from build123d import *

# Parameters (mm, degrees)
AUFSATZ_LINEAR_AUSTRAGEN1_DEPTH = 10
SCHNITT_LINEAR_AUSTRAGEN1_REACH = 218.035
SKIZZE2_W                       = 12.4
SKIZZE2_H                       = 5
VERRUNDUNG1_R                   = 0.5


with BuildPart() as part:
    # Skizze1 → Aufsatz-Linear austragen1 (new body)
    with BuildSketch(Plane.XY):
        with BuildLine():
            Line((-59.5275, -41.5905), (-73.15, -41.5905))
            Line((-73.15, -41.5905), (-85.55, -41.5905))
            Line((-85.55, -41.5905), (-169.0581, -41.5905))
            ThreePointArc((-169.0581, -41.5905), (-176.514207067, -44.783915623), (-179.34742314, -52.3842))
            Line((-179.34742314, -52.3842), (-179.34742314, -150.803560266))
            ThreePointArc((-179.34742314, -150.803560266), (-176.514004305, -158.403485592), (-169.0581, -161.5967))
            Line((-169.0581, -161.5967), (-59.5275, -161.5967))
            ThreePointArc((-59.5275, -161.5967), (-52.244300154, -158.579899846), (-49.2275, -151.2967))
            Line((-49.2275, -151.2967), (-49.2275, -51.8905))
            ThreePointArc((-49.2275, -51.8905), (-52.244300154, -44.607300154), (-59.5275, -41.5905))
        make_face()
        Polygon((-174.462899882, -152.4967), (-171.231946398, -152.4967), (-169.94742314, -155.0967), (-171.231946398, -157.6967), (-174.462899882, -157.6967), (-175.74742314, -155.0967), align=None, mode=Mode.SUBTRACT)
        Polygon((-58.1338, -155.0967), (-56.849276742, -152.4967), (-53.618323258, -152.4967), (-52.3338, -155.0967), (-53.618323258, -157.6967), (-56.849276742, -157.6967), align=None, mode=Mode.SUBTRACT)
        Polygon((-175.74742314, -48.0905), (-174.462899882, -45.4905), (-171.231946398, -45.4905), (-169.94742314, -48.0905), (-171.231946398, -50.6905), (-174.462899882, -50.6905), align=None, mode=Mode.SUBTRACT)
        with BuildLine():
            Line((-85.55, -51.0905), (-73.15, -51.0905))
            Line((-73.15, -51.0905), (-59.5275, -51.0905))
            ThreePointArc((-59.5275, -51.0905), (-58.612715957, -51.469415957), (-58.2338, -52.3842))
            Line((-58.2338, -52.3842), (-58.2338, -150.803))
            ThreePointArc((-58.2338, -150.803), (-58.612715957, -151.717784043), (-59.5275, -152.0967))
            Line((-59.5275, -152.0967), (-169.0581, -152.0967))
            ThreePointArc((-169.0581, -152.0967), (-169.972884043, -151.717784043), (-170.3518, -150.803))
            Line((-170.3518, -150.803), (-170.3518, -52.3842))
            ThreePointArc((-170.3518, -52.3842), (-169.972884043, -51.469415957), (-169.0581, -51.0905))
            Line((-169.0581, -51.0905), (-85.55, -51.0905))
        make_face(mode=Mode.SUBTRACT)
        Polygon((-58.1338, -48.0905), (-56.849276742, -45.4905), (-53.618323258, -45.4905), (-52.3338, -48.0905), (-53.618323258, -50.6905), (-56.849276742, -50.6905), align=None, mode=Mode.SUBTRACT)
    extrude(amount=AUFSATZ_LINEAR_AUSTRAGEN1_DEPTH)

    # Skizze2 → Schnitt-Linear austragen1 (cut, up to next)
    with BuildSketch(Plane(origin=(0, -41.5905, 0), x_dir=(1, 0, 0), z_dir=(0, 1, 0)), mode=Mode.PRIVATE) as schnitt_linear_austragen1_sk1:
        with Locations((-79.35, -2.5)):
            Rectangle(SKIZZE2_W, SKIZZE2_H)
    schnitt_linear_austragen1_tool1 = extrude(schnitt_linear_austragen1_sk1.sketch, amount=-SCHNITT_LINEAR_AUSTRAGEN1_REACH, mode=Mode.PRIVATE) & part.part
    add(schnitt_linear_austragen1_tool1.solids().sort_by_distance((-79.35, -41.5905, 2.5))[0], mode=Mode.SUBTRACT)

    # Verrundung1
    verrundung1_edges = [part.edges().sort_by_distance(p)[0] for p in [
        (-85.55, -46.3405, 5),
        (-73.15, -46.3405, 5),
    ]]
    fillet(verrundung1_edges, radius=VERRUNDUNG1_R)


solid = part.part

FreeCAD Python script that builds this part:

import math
import FreeCAD as App
import Part
import Sketcher
from FreeCAD import Vector
Q = App.Units.Quantity


def edges_at(feature, points):
    """Names of the edges that pass closest to the given points."""
    edges = feature.Shape.Edges
    near = lambda p: min(range(len(edges)), key=lambda i: edges[i].distToShape(Part.Vertex(*p))[0])
    return sorted({f"Edge{near(p) + 1}" for p in points})


def add_polygon(sketch, points):
    """Adds a closed chain of lines whose ends are joined by coincident constraints."""
    first, n = sketch.GeometryCount, len(points)
    for a, b in zip(points, points[1:] + points[:1]):
        sketch.addGeometry(Part.LineSegment(App.Vector(*a, 0), App.Vector(*b, 0)), False)
    for i in range(n):
        sketch.addConstraint(Sketcher.Constraint("Coincident", first + i, 2, first + (i + 1) % n, 1))

doc = App.newDocument("Part")
body = doc.addObject("PartDesign::Body", "Body")

sketch1 = doc.addObject("Sketcher::SketchObject", "Sketch")
body.addObject(sketch1)
sketch1.AttachmentSupport = (doc.XY_Plane, [""])
sketch1.MapMode = "FlatFace"
sketch1.addGeometry(Part.LineSegment(Vector(-59.5, -41.6, 0), Vector(-169.1, -41.6, 0)), False)
sketch1.addGeometry(Part.ArcOfCircle(Part.Circle(Vector(-169.1, -51.9, 0), Vector(0, 0, 1), 10.3), math.radians(90), math.radians(183)), False)
sketch1.addGeometry(Part.LineSegment(Vector(-179.3, -52.4, 0), Vector(-179.3, -150.8, 0)), False)
sketch1.addGeometry(Part.ArcOfCircle(Part.Circle(Vector(-169.1, -151.3, 0), Vector(0, 0, 1), 10.3), math.radians(177), math.radians(270)), False)
sketch1.addGeometry(Part.LineSegment(Vector(-169.1, -161.6, 0), Vector(-59.5, -161.6, 0)), False)
sketch1.addGeometry(Part.ArcOfCircle(Part.Circle(Vector(-59.5, -151.3, 0), Vector(0, 0, 1), 10.3), math.radians(-90), math.radians(0)), False)
sketch1.addGeometry(Part.LineSegment(Vector(-49.2, -151.3, 0), Vector(-49.2, -51.9, 0)), False)
sketch1.addGeometry(Part.ArcOfCircle(Part.Circle(Vector(-59.5, -51.9, 0), Vector(0, 0, 1), 10.3), math.radians(0), math.radians(90)), False)
add_polygon(sketch1, [(-175.7, -155.1), (-174.5, -152.5), (-171.2, -152.5), (-169.9, -155.1), (-171.2, -157.7), (-174.5, -157.7)])
add_polygon(sketch1, [(-56.8, -157.7), (-58.1, -155.1), (-56.8, -152.5), (-53.6, -152.5), (-52.3, -155.1), (-53.6, -157.7)])
sketch1.addGeometry(Part.LineSegment(Vector(-169.1, -51.1, 0), Vector(-59.5, -51.1, 0)), False)
sketch1.addGeometry(Part.ArcOfCircle(Part.Circle(Vector(-59.5, -52.4, 0), Vector(0, 0, 1), 1.3), math.radians(0), math.radians(90)), False)
sketch1.addGeometry(Part.LineSegment(Vector(-58.2, -52.4, 0), Vector(-58.2, -150.8, 0)), False)
sketch1.addGeometry(Part.ArcOfCircle(Part.Circle(Vector(-59.5, -150.8, 0), Vector(0, 0, 1), 1.3), math.radians(-90), math.radians(0)), False)
sketch1.addGeometry(Part.LineSegment(Vector(-59.5, -152.1, 0), Vector(-169.1, -152.1, 0)), False)
sketch1.addGeometry(Part.ArcOfCircle(Part.Circle(Vector(-169.1, -150.8, 0), Vector(0, 0, 1), 1.3), math.radians(180), math.radians(270)), False)
sketch1.addGeometry(Part.LineSegment(Vector(-170.4, -150.8, 0), Vector(-170.4, -52.4, 0)), False)
sketch1.addGeometry(Part.ArcOfCircle(Part.Circle(Vector(-169.1, -52.4, 0), Vector(0, 0, 1), 1.3), math.radians(90), math.radians(180)), False)
add_polygon(sketch1, [(-174.5, -50.7), (-175.7, -48.1), (-174.5, -45.5), (-171.2, -45.5), (-169.9, -48.1), (-171.2, -50.7)])
add_polygon(sketch1, [(-56.8, -50.7), (-58.1, -48.1), (-56.8, -45.5), (-53.6, -45.5), (-52.3, -48.1), (-53.6, -50.7)])
sketch1.addConstraint(Sketcher.Constraint("Tangent", 0, 2, 1, 1))
sketch1.addConstraint(Sketcher.Constraint("Coincident", 1, 2, 2, 1))
sketch1.addConstraint(Sketcher.Constraint("Coincident", 2, 2, 3, 1))
sketch1.addConstraint(Sketcher.Constraint("Tangent", 3, 2, 4, 1))
sketch1.addConstraint(Sketcher.Constraint("Tangent", 4, 2, 5, 1))
sketch1.addConstraint(Sketcher.Constraint("Tangent", 5, 2, 6, 1))
sketch1.addConstraint(Sketcher.Constraint("Tangent", 6, 2, 7, 1))
sketch1.addConstraint(Sketcher.Constraint("Tangent", 7, 2, 0, 1))
sketch1.addConstraint(Sketcher.Constraint("Tangent", 20, 2, 21, 2))
sketch1.addConstraint(Sketcher.Constraint("Tangent", 21, 1, 22, 1))
sketch1.addConstraint(Sketcher.Constraint("Tangent", 22, 2, 23, 2))
sketch1.addConstraint(Sketcher.Constraint("Tangent", 23, 1, 24, 1))
sketch1.addConstraint(Sketcher.Constraint("Tangent", 24, 2, 25, 2))
sketch1.addConstraint(Sketcher.Constraint("Tangent", 25, 1, 26, 1))
sketch1.addConstraint(Sketcher.Constraint("Tangent", 26, 2, 27, 2))
sketch1.addConstraint(Sketcher.Constraint("Tangent", 27, 1, 20, 1))
sketch1.addConstraint(Sketcher.Constraint("Horizontal", 0))
sketch1.addConstraint(Sketcher.Constraint("Vertical", 2))
sketch1.addConstraint(Sketcher.Constraint("Horizontal", 4))
sketch1.addConstraint(Sketcher.Constraint("Vertical", 6))
sketch1.addConstraint(Sketcher.Constraint("Horizontal", 9))
sketch1.addConstraint(Sketcher.Constraint("Horizontal", 12))
sketch1.addConstraint(Sketcher.Constraint("Horizontal", 16))
sketch1.addConstraint(Sketcher.Constraint("Horizontal", 19))
sketch1.addConstraint(Sketcher.Constraint("Horizontal", 20))
sketch1.addConstraint(Sketcher.Constraint("Vertical", 22))
sketch1.addConstraint(Sketcher.Constraint("Horizontal", 24))
sketch1.addConstraint(Sketcher.Constraint("Vertical", 26))
sketch1.addConstraint(Sketcher.Constraint("Horizontal", 30))
sketch1.addConstraint(Sketcher.Constraint("Horizontal", 33))
sketch1.addConstraint(Sketcher.Constraint("Horizontal", 36))
sketch1.addConstraint(Sketcher.Constraint("Horizontal", 39))
sketch1.addConstraint(Sketcher.Constraint("Equal", 5, 7))
sketch1.addConstraint(Sketcher.Constraint("Equal", 21, 23))
sketch1.addConstraint(Sketcher.Constraint("Equal", 23, 25))
sketch1.addConstraint(Sketcher.Constraint("Equal", 25, 27))
sketch1.addConstraint(Sketcher.Constraint("Parallel", 8, 11))
sketch1.addConstraint(Sketcher.Constraint("Parallel", 10, 13))
sketch1.addConstraint(Sketcher.Constraint("Parallel", 13, 14))
sketch1.addConstraint(Sketcher.Constraint("Parallel", 11, 15))
sketch1.addConstraint(Sketcher.Constraint("Parallel", 14, 17))
sketch1.addConstraint(Sketcher.Constraint("Parallel", 15, 18))
sketch1.addConstraint(Sketcher.Constraint("Parallel", 17, 28))
sketch1.addConstraint(Sketcher.Constraint("Parallel", 18, 29))
sketch1.addConstraint(Sketcher.Constraint("Parallel", 28, 31))
sketch1.addConstraint(Sketcher.Constraint("Parallel", 29, 32))
sketch1.addConstraint(Sketcher.Constraint("Parallel", 31, 34))
sketch1.addConstraint(Sketcher.Constraint("Parallel", 32, 35))
sketch1.addConstraint(Sketcher.Constraint("Parallel", 34, 37))
sketch1.addConstraint(Sketcher.Constraint("Parallel", 35, 38))
sketch1.addConstraint(Sketcher.Constraint("Horizontal", 27, 3, 1, 2))
sketch1.addConstraint(Sketcher.Constraint("Horizontal", 10, 2, 13, 2))
sketch1.addConstraint(Sketcher.Constraint("Horizontal", 13, 2, 14, 2))
sketch1.addConstraint(Sketcher.Constraint("Horizontal", 9, 2, 15, 2))
sketch1.addConstraint(Sketcher.Constraint("Horizontal", 14, 2, 17, 2))
sketch1.addConstraint(Sketcher.Constraint("Horizontal", 12, 2, 18, 2))
sketch1.addConstraint(Sketcher.Constraint("Horizontal", 28, 2, 31, 2))
sketch1.addConstraint(Sketcher.Constraint("Horizontal", 31, 2, 34, 2))
sketch1.addConstraint(Sketcher.Constraint("Horizontal", 30, 2, 35, 2))
sketch1.addConstraint(Sketcher.Constraint("Horizontal", 34, 2, 37, 2))
sketch1.addConstraint(Sketcher.Constraint("Horizontal", 33, 2, 38, 2))
sketch1.addConstraint(Sketcher.Constraint("Vertical", 1, 3, 3, 3))
sketch1.addConstraint(Sketcher.Constraint("Vertical", 7, 3, 21, 3))
sketch1.addConstraint(Sketcher.Constraint("Vertical", 3, 3, 25, 3))
sketch1.addConstraint(Sketcher.Constraint("Vertical", 9, 2, 11, 2))
sketch1.addConstraint(Sketcher.Constraint("Vertical", 8, 2, 12, 2))
sketch1.addConstraint(Sketcher.Constraint("Vertical", 13, 2, 28, 2))
sketch1.addConstraint(Sketcher.Constraint("Vertical", 12, 2, 29, 2))
sketch1.addConstraint(Sketcher.Constraint("Vertical", 11, 2, 30, 2))
sketch1.addConstraint(Sketcher.Constraint("Vertical", 30, 2, 32, 2))
sketch1.addConstraint(Sketcher.Constraint("Vertical", 14, 2, 34, 2))
sketch1.addConstraint(Sketcher.Constraint("Vertical", 18, 2, 36, 2))
sketch1.addConstraint(Sketcher.Constraint("Equal", 12, 16))
sketch1.addConstraint(Sketcher.Constraint("Radius", 5, Q("10.3 mm")))
sketch1.addConstraint(Sketcher.Constraint("DistanceY", 14, 2, 23, 1, Q("3 mm")))
sketch1.addConstraint(Sketcher.Constraint("DistanceY", 27, 1, 28, 2, Q("3 mm")))
sketch1.addConstraint(Sketcher.Constraint("Distance", 8, Q("2.9 mm")))
sketch1.addConstraint(Sketcher.Constraint("Radius", 21, Q("1.2937 mm")))
sketch1.addConstraint(Sketcher.Constraint("DistanceY", 3, 2, 8, 2, Q("9.1 mm")))
sketch1.addConstraint(Sketcher.Constraint("DistanceY", 10, 2, 9, 2, Q("2.6 mm")))
sketch1.addConstraint(Sketcher.Constraint("DistanceX", 2, 2, 13, 2, Q("3.6 mm")))
sketch1.addConstraint(Sketcher.Constraint("DistanceX", 14, 2, 17, 2, Q("5.8 mm")))
sketch1.addConstraint(Sketcher.Constraint("DistanceY", 7, 3, 20, 2, Q("0.8 mm")))
sketch1.addConstraint(Sketcher.Constraint("DistanceX", 22, 2, 14, 2, Q("0.1 mm")))
sketch1.addConstraint(Sketcher.Constraint("DistanceX", 0, 2, 0, 1, Q("109.5306 mm")))
sketch1.addConstraint(Sketcher.Constraint("DistanceY", 6, 1, 6, 2, Q("99.4062 mm")))
sketch1.addConstraint(Sketcher.Constraint("DistanceY", 23, 3, -1, 1, Q("150.803 mm")))
sketch1.addConstraint(Sketcher.Constraint("Radius", 1, Q("10.301108 mm")))
sketch1.addConstraint(Sketcher.Constraint("Radius", 3, Q("10.301082 mm")))
sketch1.addConstraint(Sketcher.Constraint("DistanceX", 1, 3, -1, 1, Q("169.0581 mm")))
pad1 = doc.addObject("PartDesign::Pad", "Pad")
body.addObject(pad1)
pad1.Profile = sketch1
pad1.Length = 10

sketch2 = doc.addObject("Sketcher::SketchObject", "Sketch001")
body.addObject(sketch2)
sketch2.AttachmentSupport = (doc.XZ_Plane, [""])
sketch2.MapMode = "FlatFace"
sketch2.AttachmentOffset = App.Placement(Vector(0, 0, 41.5905), App.Rotation())
add_polygon(sketch2, [(-86, 0), (-86, 5), (-73, 5), (-73, 0)])
sketch2.addConstraint(Sketcher.Constraint("Vertical", 0))
sketch2.addConstraint(Sketcher.Constraint("Horizontal", 1))
sketch2.addConstraint(Sketcher.Constraint("Vertical", 2))
sketch2.addConstraint(Sketcher.Constraint("Horizontal", 3))
sketch2.addConstraint(Sketcher.Constraint("PointOnObject", 2, 2, -1))
sketch2.addConstraint(Sketcher.Constraint("DistanceY", 0, 1, 0, 2, Q("5 mm")))
sketch2.addConstraint(Sketcher.Constraint("DistanceX", 1, 1, 1, 2, Q("12.4 mm")))
sketch2.addConstraint(Sketcher.Constraint("DistanceX", 0, 2, -1, 1, Q("85.55 mm")))
pocket1 = doc.addObject("PartDesign::Pocket", "Pocket")
body.addObject(pocket1)
pocket1.Profile = sketch2
pocket1.Type = "UpToFirst"
pocket1.Reversed = True
doc.recompute()

fillet = doc.addObject("PartDesign::Fillet", "Fillet")
body.addObject(fillet)
fillet.Base = (pocket1, edges_at(pocket1, [(-85.55, -46.34, 5), (-73.15, -46.34, 5)]))
fillet.Radius = 0.5

doc.recompute()
